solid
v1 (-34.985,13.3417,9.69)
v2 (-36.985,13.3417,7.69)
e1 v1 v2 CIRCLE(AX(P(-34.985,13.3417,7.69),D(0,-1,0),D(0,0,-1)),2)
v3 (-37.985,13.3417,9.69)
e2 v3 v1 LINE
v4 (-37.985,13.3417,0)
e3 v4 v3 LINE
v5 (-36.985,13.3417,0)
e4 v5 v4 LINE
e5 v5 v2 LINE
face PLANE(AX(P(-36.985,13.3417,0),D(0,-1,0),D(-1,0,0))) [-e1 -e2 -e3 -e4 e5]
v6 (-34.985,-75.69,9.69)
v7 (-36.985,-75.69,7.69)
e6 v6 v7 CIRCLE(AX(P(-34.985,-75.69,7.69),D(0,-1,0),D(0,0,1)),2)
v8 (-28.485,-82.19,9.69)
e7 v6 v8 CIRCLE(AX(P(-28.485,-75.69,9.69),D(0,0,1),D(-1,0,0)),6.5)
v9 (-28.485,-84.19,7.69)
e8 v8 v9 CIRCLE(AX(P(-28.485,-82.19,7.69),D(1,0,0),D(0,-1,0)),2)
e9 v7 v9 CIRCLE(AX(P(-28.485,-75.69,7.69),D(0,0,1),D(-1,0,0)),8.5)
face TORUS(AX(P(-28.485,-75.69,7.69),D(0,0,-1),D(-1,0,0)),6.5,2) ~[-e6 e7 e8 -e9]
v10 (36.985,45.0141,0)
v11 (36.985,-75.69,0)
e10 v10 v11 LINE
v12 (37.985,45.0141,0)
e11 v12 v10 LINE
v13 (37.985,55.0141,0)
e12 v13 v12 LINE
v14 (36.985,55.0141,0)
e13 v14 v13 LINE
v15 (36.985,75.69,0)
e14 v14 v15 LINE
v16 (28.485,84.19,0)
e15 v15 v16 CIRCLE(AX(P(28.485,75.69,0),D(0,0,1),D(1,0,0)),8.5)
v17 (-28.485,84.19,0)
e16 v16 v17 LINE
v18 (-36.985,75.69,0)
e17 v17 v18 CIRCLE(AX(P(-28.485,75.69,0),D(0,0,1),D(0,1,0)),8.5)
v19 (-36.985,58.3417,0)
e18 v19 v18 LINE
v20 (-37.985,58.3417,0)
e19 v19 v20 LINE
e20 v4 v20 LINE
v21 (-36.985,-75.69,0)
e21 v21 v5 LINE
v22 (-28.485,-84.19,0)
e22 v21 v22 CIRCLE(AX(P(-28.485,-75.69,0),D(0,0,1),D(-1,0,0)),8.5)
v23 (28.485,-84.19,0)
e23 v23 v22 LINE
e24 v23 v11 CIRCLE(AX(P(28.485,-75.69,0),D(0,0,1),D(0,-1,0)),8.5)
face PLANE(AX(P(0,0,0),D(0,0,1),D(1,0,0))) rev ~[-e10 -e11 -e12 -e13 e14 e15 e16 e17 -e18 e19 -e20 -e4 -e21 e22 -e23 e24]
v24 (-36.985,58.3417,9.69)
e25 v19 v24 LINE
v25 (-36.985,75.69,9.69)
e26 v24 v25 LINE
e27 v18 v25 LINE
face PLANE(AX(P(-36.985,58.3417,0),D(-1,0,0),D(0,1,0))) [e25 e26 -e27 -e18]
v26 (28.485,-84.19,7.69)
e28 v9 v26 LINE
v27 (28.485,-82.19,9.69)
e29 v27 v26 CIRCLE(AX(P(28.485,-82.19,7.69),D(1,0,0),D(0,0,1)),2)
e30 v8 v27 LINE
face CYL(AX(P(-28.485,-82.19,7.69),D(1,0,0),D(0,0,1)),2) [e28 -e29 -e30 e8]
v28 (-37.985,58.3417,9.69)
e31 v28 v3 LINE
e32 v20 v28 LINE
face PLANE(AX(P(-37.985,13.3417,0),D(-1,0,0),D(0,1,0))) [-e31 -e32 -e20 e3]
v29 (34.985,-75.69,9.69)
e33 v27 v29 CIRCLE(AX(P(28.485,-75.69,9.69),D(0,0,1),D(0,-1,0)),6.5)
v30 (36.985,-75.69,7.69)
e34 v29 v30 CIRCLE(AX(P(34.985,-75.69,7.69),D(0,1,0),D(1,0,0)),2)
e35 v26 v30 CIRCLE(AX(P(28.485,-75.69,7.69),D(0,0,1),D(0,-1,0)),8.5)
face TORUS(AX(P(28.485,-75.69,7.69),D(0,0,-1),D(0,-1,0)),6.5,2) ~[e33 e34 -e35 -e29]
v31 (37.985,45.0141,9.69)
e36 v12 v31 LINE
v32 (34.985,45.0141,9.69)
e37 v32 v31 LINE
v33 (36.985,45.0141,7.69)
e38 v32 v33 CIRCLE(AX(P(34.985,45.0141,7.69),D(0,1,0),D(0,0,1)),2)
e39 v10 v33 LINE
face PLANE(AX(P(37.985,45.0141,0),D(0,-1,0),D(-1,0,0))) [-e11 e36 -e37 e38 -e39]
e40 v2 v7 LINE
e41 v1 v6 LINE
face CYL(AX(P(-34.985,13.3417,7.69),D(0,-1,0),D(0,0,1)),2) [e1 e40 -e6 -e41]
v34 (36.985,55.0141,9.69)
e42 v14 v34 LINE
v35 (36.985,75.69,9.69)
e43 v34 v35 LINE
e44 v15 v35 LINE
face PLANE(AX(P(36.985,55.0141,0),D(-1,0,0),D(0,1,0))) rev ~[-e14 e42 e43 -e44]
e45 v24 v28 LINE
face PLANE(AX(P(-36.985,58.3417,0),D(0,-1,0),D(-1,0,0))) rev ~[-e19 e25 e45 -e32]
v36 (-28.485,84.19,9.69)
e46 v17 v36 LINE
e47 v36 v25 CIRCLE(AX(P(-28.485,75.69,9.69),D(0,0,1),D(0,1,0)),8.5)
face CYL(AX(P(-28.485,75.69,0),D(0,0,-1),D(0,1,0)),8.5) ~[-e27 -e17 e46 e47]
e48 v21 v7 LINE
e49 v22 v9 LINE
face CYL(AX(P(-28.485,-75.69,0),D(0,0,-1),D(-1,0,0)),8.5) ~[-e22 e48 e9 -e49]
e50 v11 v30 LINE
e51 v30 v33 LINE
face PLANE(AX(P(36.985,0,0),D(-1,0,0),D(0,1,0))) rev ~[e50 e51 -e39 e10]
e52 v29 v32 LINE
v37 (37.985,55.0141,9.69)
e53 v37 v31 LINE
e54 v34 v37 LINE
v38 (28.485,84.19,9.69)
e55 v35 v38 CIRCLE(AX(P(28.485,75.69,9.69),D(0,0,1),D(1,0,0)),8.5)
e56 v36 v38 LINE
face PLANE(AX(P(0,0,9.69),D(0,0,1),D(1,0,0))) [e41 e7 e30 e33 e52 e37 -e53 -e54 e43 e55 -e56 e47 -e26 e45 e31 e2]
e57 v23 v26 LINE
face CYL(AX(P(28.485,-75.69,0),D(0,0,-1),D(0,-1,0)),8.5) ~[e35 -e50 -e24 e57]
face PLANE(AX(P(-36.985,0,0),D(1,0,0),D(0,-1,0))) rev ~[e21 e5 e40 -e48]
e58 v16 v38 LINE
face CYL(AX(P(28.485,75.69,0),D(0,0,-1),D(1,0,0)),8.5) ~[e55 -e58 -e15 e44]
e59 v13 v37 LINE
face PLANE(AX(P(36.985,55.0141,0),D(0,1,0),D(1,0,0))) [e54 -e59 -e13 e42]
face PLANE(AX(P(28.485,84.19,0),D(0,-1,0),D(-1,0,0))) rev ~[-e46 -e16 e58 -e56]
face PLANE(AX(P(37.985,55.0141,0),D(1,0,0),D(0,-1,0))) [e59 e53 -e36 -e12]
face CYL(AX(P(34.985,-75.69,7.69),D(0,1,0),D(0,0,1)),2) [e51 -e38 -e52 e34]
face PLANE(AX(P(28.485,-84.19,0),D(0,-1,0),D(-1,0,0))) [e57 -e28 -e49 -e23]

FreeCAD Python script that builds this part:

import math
import FreeCAD as App
import Part
import Sketcher
from FreeCAD import Vector
Q = App.Units.Quantity


def edges_at(feature, points):
    """Names of the edges that pass closest to the given points."""
    edges = feature.Shape.Edges
    near = lambda p: min(range(len(edges)), key=lambda i: edges[i].distToShape(Part.Vertex(*p))[0])
    return sorted({f"Edge{near(p) + 1}" for p in points})

doc = App.newDocument("Part")
body = doc.addObject("PartDesign::Body", "Body")

sketch1 = body.newObject("Sketcher::SketchObject", "Sketch")
sketch1.AttachmentSupport = (doc.getObject("XY_Plane"), [""])
sketch1.MapMode = "FlatFace"
sketch1.addGeometry(Part.ArcOfCircle(Part.Circle(Vector(28.485, 75.69, 0), Vector(0, 0, 1), 8.5), math.radians(0), math.radians(90)), False)
sketch1.addGeometry(Part.LineSegment(Vector(28.485, 84.19, 0), Vector(-28.485, 84.19, 0)), False)
sketch1.addGeometry(Part.ArcOfCircle(Part.Circle(Vector(-28.485, 75.69, 0), Vector(0, 0, 1), 8.5), math.radians(90), math.radians(180)), False)
sketch1.addGeometry(Part.LineSegment(Vector(-36.985, 75.69, 0), Vector(-36.985, 58.3417, 0)), False)
sketch1.addGeometry(Part.LineSegment(Vector(-36.985, 58.3417, 0), Vector(-37.985, 58.3417, 0)), False)
sketch1.addGeometry(Part.LineSegment(Vector(-37.985, 58.3417, 0), Vector(-37.985, 13.3417, 0)), False)
sketch1.addGeometry(Part.LineSegment(Vector(-37.985, 13.3417, 0), Vector(-36.985, 13.3417, 0)), False)
sketch1.addGeometry(Part.LineSegment(Vector(-36.985, 13.3417, 0), Vector(-36.985, -75.69, 0)), False)
sketch1.addGeometry(Part.ArcOfCircle(Part.Circle(Vector(-28.485, -75.69, 0), Vector(0, 0, 1), 8.5), math.radians(180), math.radians(270)), False)
sketch1.addGeometry(Part.LineSegment(Vector(-28.485, -84.19, 0), Vector(28.485, -84.19, 0)), False)
sketch1.addGeometry(Part.ArcOfCircle(Part.Circle(Vector(28.485, -75.69, 0), Vector(0, 0, 1), 8.5), math.radians(-90), math.radians(0)), False)
sketch1.addGeometry(Part.LineSegment(Vector(36.985, -75.69, 0), Vector(36.985, 45.0141, 0)), False)
sketch1.addGeometry(Part.LineSegment(Vector(36.985, 45.0141, 0), Vector(37.985, 45.0141, 0)), False)
sketch1.addGeometry(Part.LineSegment(Vector(37.985, 45.0141, 0), Vector(37.985, 55.0141, 0)), False)
sketch1.addGeometry(Part.LineSegment(Vector(37.985, 55.0141, 0), Vector(36.985, 55.0141, 0)), False)
sketch1.addGeometry(Part.LineSegment(Vector(36.985, 55.0141, 0), Vector(36.985, 75.69, 0)), False)
sketch1.addConstraint(Sketcher.Constraint("Tangent", 0, 2, 1, 1))
sketch1.addConstraint(Sketcher.Constraint("Tangent", 1, 2, 2, 1))
sketch1.addConstraint(Sketcher.Constraint("Tangent", 2, 2, 3, 1))
sketch1.addConstraint(Sketcher.Constraint("Coincident", 3, 2, 4, 1))
sketch1.addConstraint(Sketcher.Constraint("Coincident", 4, 2, 5, 1))
sketch1.addConstraint(Sketcher.Constraint("Coincident", 5, 2, 6, 1))
sketch1.addConstraint(Sketcher.Constraint("Coincident", 6, 2, 7, 1))
sketch1.addConstraint(Sketcher.Constraint("Tangent", 7, 2, 8, 1))
sketch1.addConstraint(Sketcher.Constraint("Tangent", 8, 2, 9, 1))
sketch1.addConstraint(Sketcher.Constraint("Tangent", 9, 2, 10, 1))
sketch1.addConstraint(Sketcher.Constraint("Tangent", 10, 2, 11, 1))
sketch1.addConstraint(Sketcher.Constraint("Coincident", 11, 2, 12, 1))
sketch1.addConstraint(Sketcher.Constraint("Coincident", 12, 2, 13, 1))
sketch1.addConstraint(Sketcher.Constraint("Coincident", 13, 2, 14, 1))
sketch1.addConstraint(Sketcher.Constraint("Coincident", 14, 2, 15, 1))
sketch1.addConstraint(Sketcher.Constraint("Tangent", 15, 2, 0, 1))
sketch1.addConstraint(Sketcher.Constraint("Horizontal", 1))
sketch1.addConstraint(Sketcher.Constraint("Vertical", 3))
sketch1.addConstraint(Sketcher.Constraint("Horizontal", 4))
sketch1.addConstraint(Sketcher.Constraint("Vertical", 5))
sketch1.addConstraint(Sketcher.Constraint("Horizontal", 6))
sketch1.addConstraint(Sketcher.Constraint("Vertical", 7))
sketch1.addConstraint(Sketcher.Constraint("Horizontal", 9))
sketch1.addConstraint(Sketcher.Constraint("Vertical", 11))
sketch1.addConstraint(Sketcher.Constraint("Horizontal", 12))
sketch1.addConstraint(Sketcher.Constraint("Vertical", 13))
sketch1.addConstraint(Sketcher.Constraint("Horizontal", 14))
sketch1.addConstraint(Sketcher.Constraint("Vertical", 15))
sketch1.addConstraint(Sketcher.Constraint("Equal", 0, 2))
sketch1.addConstraint(Sketcher.Constraint("Equal", 2, 8))
sketch1.addConstraint(Sketcher.Constraint("Equal", 8, 10))
sketch1.addConstraint(Sketcher.Constraint("Symmetric", 0, 3, 8, 3, -1, 1))
sketch1.addConstraint(Sketcher.Constraint("Vertical", 2, 3, 8, 3))
sketch1.addConstraint(Sketcher.Constraint("Vertical", 0, 3, 10, 3))
sketch1.addConstraint(Sketcher.Constraint("Equal", 6, 12))
sketch1.addConstraint(Sketcher.Constraint("Radius", 0, Q("8.5 mm")))
sketch1.addConstraint(Sketcher.Constraint("DistanceX", 4, 2, 4, 1, Q("1 mm")))
sketch1.addConstraint(Sketcher.Constraint("DistanceY", 13, 1, 13, 2, Q("10 mm")))
sketch1.addConstraint(Sketcher.Constraint("DistanceY", 5, 2, 5, 1, Q("45 mm")))
sketch1.addConstraint(Sketcher.Constraint("DistanceX", 1, 2, 1, 1, Q("56.97 mm")))
sketch1.addConstraint(Sketcher.Constraint("DistanceY", 11, 1, 11, 2, Q("120.704 mm")))
sketch1.addConstraint(Sketcher.Constraint("DistanceY", 15, 1, 15, 2, Q("20.676 mm")))
sketch1.addConstraint(Sketcher.Constraint("DistanceY", 3, 2, 3, 1, Q("17.3483 mm")))
pad1 = body.newObject("PartDesign::Pad", "Pad")
pad1.Profile = sketch1
pad1.Length = 9.69
doc.recompute()

fillet = body.newObject("PartDesign::Fillet", "Fillet")
fillet.Base = (pad1, edges_at(pad1, [
    (-36.985, -31.174, 9.69),
    (-34.495, -81.7, 9.69),
    (0, -84.19, 9.69),
    (34.495, -81.7, 9.69),
    (36.985, -15.338, 9.69),
]))
fillet.Radius = 2

doc.recompute()
